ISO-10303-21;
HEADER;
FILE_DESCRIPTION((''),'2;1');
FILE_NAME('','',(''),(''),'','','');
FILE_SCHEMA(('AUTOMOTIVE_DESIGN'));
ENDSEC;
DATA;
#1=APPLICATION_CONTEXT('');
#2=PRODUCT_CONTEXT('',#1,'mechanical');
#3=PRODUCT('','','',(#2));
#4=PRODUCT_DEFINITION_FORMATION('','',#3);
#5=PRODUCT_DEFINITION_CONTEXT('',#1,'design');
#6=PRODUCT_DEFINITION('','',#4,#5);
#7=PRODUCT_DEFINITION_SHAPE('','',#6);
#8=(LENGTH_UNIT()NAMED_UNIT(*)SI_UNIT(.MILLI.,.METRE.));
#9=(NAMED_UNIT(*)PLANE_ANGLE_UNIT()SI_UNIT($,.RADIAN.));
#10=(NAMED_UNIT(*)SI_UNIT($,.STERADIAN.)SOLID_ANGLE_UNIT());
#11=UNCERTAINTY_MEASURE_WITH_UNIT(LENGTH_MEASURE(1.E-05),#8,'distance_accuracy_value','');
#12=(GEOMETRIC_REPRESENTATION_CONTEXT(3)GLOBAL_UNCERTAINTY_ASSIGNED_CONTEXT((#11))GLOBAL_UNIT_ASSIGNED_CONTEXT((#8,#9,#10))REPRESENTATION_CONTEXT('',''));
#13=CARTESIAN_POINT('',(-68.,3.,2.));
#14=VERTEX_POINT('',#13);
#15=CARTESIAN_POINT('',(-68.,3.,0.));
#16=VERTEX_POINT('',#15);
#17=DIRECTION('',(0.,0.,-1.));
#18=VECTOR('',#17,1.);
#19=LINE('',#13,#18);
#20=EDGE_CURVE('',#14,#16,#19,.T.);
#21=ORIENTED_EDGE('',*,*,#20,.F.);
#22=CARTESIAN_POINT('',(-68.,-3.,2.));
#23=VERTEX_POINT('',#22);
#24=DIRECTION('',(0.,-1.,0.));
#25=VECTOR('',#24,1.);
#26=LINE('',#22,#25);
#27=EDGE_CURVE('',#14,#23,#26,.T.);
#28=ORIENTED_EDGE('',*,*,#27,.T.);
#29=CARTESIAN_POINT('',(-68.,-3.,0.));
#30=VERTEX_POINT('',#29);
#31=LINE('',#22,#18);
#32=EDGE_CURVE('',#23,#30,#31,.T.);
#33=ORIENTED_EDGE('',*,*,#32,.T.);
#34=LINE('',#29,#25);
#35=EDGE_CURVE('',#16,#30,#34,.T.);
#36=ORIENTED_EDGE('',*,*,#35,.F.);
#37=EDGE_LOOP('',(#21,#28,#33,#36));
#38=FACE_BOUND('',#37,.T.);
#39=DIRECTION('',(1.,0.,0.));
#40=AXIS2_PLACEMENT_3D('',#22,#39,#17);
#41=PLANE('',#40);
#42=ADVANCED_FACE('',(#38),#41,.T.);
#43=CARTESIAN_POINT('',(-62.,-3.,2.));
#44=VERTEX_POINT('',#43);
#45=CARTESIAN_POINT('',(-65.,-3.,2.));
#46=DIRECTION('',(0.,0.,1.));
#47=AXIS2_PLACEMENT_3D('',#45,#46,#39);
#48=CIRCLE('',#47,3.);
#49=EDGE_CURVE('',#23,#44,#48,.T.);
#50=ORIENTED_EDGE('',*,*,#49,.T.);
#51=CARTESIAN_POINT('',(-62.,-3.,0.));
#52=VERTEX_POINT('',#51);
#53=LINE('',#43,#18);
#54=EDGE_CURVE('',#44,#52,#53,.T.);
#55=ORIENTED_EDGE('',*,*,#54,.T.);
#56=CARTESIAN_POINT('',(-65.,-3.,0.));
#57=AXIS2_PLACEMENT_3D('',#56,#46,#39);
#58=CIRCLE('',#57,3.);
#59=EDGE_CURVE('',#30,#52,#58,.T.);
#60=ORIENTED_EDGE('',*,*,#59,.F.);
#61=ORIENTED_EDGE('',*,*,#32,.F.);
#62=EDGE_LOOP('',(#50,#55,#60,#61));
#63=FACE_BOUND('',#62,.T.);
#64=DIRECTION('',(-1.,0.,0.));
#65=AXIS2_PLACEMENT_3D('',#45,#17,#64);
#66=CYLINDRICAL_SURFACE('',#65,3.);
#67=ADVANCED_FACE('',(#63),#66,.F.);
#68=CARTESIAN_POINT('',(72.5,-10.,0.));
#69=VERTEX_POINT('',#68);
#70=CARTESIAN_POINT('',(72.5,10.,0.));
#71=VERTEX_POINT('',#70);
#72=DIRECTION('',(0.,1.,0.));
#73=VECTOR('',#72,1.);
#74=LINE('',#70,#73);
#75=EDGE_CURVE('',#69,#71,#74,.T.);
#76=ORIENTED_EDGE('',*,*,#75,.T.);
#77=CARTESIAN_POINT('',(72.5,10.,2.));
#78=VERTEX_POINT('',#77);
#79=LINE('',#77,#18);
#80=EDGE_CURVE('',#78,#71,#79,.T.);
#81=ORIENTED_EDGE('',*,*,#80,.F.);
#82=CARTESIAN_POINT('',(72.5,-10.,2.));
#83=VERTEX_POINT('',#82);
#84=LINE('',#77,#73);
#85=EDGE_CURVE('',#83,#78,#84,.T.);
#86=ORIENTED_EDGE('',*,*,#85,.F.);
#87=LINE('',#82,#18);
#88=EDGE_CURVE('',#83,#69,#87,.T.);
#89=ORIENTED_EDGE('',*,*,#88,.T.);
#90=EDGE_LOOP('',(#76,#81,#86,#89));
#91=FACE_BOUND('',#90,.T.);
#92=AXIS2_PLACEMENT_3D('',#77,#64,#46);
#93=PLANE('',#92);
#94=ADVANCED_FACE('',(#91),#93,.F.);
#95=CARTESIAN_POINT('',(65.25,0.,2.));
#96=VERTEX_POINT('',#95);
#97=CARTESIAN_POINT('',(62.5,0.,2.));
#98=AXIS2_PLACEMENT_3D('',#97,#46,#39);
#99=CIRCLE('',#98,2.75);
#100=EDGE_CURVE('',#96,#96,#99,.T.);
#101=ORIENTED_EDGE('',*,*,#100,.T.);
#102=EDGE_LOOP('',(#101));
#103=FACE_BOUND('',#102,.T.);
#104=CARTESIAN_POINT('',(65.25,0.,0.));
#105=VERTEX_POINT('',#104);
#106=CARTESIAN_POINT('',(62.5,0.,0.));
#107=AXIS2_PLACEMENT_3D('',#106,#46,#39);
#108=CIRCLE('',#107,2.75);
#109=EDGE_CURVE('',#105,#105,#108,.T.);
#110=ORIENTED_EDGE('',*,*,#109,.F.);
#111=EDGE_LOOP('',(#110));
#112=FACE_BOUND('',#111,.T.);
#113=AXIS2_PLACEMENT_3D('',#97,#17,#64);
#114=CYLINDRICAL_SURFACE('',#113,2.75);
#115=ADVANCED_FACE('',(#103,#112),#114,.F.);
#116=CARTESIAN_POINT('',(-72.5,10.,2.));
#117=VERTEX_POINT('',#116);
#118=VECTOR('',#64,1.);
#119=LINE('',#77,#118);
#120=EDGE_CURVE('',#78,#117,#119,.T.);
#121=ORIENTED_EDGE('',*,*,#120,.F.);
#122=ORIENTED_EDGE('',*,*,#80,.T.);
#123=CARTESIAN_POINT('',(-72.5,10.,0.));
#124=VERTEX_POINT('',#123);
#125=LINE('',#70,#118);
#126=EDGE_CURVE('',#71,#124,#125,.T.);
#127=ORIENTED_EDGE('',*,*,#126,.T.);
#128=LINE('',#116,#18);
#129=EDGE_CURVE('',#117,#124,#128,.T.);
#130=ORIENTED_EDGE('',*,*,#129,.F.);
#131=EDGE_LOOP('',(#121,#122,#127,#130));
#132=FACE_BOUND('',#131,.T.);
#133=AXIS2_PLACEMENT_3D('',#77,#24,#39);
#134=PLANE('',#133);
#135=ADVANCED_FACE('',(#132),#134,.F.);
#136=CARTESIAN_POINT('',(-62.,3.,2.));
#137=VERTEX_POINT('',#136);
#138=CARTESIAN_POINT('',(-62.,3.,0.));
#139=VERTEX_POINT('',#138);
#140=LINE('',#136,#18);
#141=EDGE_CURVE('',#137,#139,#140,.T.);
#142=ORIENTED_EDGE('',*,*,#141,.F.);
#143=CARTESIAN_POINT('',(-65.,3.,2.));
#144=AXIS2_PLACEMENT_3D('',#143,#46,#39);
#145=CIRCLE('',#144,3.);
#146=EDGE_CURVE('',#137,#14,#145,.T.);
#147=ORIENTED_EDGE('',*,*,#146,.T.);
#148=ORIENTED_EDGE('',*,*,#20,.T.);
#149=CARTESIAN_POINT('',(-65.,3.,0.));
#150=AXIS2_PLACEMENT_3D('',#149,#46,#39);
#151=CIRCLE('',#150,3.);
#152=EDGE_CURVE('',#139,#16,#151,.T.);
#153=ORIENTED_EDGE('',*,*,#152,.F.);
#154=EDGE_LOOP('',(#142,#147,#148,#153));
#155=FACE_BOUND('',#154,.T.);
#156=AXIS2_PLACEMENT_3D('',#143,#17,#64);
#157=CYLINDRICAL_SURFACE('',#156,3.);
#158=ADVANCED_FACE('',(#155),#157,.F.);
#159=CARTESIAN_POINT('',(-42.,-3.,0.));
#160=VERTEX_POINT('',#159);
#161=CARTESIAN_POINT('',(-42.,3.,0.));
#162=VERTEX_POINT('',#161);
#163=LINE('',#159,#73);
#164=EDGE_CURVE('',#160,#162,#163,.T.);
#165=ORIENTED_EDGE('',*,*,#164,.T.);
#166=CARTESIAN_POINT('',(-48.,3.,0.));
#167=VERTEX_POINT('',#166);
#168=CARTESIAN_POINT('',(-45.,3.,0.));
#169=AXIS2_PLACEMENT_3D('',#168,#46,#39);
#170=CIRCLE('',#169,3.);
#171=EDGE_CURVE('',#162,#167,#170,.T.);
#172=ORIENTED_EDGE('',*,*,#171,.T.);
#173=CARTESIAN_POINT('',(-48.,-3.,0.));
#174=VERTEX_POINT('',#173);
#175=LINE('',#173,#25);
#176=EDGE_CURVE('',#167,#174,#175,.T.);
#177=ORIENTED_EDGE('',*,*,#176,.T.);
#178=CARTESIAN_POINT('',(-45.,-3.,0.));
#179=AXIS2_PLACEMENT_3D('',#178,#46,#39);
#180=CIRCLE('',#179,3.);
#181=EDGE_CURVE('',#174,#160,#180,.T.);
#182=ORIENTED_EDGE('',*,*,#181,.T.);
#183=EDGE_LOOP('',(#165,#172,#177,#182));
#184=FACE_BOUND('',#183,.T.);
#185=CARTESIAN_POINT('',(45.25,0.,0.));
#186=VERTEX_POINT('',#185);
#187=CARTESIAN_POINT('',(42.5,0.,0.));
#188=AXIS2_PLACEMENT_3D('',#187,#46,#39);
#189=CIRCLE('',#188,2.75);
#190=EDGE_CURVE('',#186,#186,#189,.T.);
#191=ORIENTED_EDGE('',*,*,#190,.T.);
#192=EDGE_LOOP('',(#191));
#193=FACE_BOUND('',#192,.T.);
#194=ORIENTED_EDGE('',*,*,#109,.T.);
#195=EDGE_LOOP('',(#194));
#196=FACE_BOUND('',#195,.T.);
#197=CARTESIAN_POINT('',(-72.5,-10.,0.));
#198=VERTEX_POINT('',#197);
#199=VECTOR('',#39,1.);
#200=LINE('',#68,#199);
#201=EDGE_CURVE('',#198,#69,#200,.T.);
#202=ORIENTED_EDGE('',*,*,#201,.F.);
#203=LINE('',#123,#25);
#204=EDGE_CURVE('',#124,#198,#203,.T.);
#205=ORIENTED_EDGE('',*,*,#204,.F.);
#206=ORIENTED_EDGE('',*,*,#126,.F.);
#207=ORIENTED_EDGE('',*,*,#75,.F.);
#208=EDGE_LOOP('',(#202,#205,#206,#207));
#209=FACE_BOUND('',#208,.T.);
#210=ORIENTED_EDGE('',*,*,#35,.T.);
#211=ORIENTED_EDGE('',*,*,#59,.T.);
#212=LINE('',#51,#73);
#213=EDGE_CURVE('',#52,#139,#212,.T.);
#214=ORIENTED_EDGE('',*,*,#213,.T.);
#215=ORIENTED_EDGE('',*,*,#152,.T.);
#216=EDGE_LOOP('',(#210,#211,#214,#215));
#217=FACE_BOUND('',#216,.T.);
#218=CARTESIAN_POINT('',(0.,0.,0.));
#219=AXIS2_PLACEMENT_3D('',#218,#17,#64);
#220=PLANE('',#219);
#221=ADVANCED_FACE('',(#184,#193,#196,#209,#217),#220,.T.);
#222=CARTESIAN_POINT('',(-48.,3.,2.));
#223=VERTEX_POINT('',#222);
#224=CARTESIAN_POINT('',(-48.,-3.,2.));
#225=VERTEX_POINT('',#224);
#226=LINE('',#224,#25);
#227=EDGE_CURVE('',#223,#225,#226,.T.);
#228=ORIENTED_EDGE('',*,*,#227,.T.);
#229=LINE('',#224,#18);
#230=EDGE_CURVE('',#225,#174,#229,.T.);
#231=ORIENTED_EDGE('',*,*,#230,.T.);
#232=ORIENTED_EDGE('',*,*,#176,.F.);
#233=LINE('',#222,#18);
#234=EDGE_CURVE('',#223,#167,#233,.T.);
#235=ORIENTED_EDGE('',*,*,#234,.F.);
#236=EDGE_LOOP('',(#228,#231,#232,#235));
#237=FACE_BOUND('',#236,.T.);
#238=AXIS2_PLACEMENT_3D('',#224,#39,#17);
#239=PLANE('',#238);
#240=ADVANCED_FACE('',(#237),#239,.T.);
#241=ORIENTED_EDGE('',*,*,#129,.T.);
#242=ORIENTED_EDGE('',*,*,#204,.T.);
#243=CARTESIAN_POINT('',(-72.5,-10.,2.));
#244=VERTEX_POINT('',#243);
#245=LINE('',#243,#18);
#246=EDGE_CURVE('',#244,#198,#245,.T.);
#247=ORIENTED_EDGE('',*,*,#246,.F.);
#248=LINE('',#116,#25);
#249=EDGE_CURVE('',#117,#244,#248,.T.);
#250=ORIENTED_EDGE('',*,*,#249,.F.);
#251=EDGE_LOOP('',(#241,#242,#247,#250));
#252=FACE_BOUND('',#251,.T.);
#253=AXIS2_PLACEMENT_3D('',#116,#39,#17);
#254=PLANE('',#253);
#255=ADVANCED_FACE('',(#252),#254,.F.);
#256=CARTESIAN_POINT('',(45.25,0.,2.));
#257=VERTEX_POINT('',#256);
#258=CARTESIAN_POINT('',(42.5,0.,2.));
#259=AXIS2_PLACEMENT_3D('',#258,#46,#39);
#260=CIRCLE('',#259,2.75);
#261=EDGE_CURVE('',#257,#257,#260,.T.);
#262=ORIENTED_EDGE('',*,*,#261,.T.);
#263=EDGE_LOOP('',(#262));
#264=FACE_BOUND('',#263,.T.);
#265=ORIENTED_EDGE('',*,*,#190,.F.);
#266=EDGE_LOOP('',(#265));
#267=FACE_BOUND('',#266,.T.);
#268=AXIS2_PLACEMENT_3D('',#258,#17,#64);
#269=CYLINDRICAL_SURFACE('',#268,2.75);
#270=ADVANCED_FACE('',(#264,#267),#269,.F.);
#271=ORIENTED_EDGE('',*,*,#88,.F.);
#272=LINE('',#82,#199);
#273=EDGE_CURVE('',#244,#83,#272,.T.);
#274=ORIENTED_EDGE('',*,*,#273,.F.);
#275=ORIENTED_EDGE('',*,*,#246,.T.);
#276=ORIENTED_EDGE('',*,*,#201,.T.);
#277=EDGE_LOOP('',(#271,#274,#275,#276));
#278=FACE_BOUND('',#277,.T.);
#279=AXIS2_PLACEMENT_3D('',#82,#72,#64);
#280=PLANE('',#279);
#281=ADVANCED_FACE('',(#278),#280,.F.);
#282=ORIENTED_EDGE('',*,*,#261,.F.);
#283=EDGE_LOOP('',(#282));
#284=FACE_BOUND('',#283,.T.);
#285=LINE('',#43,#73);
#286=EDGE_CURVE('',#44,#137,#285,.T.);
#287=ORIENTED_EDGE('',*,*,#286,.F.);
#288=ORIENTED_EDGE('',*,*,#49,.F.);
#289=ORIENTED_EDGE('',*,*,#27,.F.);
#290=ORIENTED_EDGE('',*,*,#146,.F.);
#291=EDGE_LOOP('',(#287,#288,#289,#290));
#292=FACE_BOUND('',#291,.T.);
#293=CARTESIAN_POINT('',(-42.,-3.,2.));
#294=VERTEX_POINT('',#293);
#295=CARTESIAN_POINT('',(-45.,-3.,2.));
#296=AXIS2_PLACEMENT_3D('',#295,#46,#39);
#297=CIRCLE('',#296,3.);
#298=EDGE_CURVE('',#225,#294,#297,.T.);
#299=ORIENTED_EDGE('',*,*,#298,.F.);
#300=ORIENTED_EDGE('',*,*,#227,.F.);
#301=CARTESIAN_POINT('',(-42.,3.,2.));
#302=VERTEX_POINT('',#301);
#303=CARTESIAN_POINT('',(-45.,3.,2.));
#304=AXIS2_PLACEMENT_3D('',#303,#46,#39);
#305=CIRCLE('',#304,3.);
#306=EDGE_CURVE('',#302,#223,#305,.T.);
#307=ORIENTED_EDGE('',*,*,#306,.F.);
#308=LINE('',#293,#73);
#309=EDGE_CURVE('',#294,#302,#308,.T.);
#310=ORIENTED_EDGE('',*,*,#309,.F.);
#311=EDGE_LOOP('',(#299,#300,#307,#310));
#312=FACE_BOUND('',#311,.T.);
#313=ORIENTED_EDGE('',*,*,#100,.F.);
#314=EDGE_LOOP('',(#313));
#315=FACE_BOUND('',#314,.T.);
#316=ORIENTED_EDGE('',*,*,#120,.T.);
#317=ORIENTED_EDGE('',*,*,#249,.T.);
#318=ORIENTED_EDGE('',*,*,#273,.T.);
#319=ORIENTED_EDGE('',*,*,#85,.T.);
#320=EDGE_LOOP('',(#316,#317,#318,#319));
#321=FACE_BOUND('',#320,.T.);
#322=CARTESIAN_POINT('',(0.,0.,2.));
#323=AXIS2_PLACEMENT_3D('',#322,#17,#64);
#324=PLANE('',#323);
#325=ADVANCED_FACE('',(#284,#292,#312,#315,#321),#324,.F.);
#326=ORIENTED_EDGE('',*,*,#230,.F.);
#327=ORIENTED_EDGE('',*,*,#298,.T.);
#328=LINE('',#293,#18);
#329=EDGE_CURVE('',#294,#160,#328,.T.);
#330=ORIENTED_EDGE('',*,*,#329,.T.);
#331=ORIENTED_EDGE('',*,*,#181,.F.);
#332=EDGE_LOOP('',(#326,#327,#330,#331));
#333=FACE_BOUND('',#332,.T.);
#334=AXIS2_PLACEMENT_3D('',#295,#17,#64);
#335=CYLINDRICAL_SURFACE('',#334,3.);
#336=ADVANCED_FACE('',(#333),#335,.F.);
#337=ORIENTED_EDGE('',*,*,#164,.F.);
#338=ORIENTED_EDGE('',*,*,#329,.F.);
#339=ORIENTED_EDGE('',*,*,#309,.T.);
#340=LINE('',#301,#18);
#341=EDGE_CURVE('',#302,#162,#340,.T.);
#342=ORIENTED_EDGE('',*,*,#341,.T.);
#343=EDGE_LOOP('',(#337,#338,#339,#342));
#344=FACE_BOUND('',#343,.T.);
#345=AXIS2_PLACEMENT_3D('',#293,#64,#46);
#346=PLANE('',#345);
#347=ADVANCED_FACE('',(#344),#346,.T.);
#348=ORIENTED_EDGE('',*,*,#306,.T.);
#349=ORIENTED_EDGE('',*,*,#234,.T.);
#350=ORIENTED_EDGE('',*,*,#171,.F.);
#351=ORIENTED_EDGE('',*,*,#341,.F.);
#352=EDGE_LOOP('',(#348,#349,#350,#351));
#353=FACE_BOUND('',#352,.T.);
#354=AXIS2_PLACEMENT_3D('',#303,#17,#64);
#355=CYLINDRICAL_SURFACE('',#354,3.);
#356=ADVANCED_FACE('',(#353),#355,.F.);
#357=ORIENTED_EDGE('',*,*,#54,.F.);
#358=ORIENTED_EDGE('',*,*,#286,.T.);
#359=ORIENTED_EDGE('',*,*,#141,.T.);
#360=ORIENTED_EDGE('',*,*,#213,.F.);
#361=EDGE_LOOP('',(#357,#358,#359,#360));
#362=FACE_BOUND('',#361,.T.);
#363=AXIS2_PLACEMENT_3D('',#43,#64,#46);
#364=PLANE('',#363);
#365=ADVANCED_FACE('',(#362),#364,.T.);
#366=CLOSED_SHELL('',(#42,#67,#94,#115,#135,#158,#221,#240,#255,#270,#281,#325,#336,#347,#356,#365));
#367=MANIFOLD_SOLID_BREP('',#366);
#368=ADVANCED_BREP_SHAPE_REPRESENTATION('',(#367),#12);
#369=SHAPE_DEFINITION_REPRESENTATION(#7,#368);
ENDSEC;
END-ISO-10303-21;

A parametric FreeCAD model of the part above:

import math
import FreeCAD as App
import Part
import Sketcher

V = App.Vector
Q = App.Units.Quantity

doc = App.newDocument("Part")
body = doc.addObject("PartDesign::Body", "Body")

sketch1 = body.newObject("Sketcher::SketchObject", "Sketch")
sketch1.AttachmentSupport = (doc.getObject("XY_Plane"), [""])
sketch1.MapMode = "FlatFace"
sketch1.addGeometry([
    Part.LineSegment(V(-72.5, 10, 0), V(-72.5, -10, 0)),
    Part.LineSegment(V(-72.5, -10, 0), V(72.5, -10, 0)),
    Part.LineSegment(V(72.5, -10, 0), V(72.5, 10, 0)),
    Part.LineSegment(V(72.5, 10, 0), V(-72.5, 10, 0)),
    Part.ArcOfCircle(Part.Circle(V(-65, -3, 0), V(0, 0, 1), 3), math.radians(180), math.radians(360)),
    Part.LineSegment(V(-68, -3, 0), V(-68, 3, 0)),
    Part.ArcOfCircle(Part.Circle(V(-65, 3, 0), V(0, 0, 1), 3), math.radians(0), math.radians(180)),
    Part.LineSegment(V(-62, 3, 0), V(-62, -3, 0)),
    Part.ArcOfCircle(Part.Circle(V(-45, -3, 0), V(0, 0, 1), 3), math.radians(180), math.radians(360)),
    Part.LineSegment(V(-48, -3, 0), V(-48, 3, 0)),
    Part.ArcOfCircle(Part.Circle(V(-45, 3, 0), V(0, 0, 1), 3), math.radians(0), math.radians(180)),
    Part.LineSegment(V(-42, 3, 0), V(-42, -3, 0)),
    Part.Circle(V(42.5, 0, 0), V(0, 0, 1), 2.75),
    Part.Circle(V(62.5, 0, 0), V(0, 0, 1), 2.75),
], False)
sketch1.addConstraint([
    Sketcher.Constraint("Coincident", 0, 2, 1, 1),
    Sketcher.Constraint("Coincident", 1, 2, 2, 1),
    Sketcher.Constraint("Coincident", 2, 2, 3, 1),
    Sketcher.Constraint("Coincident", 3, 2, 0, 1),
    Sketcher.Constraint("Tangent", 4, 1, 5, 1),
    Sketcher.Constraint("Tangent", 5, 2, 6, 2),
    Sketcher.Constraint("Tangent", 6, 1, 7, 1),
    Sketcher.Constraint("Tangent", 7, 2, 4, 2),
    Sketcher.Constraint("Tangent", 8, 1, 9, 1),
    Sketcher.Constraint("Tangent", 9, 2, 10, 2),
    Sketcher.Constraint("Tangent", 10, 1, 11, 1),
    Sketcher.Constraint("Tangent", 11, 2, 8, 2),
    Sketcher.Constraint("Vertical", 0),
    Sketcher.Constraint("Horizontal", 1),
    Sketcher.Constraint("Vertical", 2),
    Sketcher.Constraint("Horizontal", 3),
    Sketcher.Constraint("Vertical", 5),
    Sketcher.Constraint("Vertical", 7),
    Sketcher.Constraint("Vertical", 9),
    Sketcher.Constraint("Vertical", 11),
    Sketcher.Constraint("Equal", 6, 8),
    Sketcher.Constraint("Equal", 12, 13),
    Sketcher.Constraint("Symmetric", 0, 2, 2, 2, -1, 1),
    Sketcher.Constraint("PointOnObject", 12, 3, -1),
    Sketcher.Constraint("PointOnObject", 13, 3, -1),
    Sketcher.Constraint("Horizontal", 4, 3, 8, 3),
    Sketcher.Constraint("Horizontal", 6, 3, 10, 3),
    Sketcher.Constraint("Radius", 4, Q("3 mm")),
    Sketcher.Constraint("Diameter", 12, Q("5.5 mm")),
    Sketcher.Constraint("DistanceX", 1, 1, 1, 2, Q("145 mm")),
    Sketcher.Constraint("DistanceY", 0, 2, 0, 1, Q("20 mm")),
    Sketcher.Constraint("DistanceY", 5, 1, 5, 2, Q("6 mm")),
    Sketcher.Constraint("DistanceX", 4, 3, -1, 1, Q("65 mm")),
    Sketcher.Constraint("DistanceY", 4, 3, -1, 1, Q("3 mm")),
    Sketcher.Constraint("DistanceX", 8, 3, -1, 1, Q("45 mm")),
    Sketcher.Constraint("DistanceX", 12, 3, 13, 3, Q("20 mm")),
    Sketcher.Constraint("DistanceX", 0, 2, 12, 3, Q("115 mm")),
])
pad1 = body.newObject("PartDesign::Pad", "Pad")
pad1.Profile = sketch1
pad1.Length = 2

doc.recompute()
